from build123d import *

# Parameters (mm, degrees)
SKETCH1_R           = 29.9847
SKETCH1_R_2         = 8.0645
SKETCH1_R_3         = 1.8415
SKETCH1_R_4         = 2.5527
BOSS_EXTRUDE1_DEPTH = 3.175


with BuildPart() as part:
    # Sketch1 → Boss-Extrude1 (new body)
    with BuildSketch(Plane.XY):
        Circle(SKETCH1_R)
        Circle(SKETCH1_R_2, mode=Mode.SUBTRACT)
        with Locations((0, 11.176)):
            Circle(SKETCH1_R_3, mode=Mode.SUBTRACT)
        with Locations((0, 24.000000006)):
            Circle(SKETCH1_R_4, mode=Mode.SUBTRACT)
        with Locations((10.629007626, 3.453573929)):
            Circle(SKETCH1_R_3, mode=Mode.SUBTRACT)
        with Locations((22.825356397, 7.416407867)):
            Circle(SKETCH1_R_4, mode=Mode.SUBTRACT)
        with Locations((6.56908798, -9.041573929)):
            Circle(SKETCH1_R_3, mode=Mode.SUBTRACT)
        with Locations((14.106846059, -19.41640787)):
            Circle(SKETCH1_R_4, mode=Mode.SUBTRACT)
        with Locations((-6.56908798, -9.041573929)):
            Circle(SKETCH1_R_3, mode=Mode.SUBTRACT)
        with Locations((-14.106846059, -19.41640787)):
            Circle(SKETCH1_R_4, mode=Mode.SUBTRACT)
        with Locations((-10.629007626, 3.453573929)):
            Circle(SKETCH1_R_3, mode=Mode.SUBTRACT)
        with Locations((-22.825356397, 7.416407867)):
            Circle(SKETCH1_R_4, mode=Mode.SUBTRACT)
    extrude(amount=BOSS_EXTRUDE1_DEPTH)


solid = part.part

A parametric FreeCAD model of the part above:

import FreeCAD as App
import Part
import Sketcher
Q = App.Units.Quantity

doc = App.newDocument("Part")
body = doc.addObject("PartDesign::Body", "Body")

sketch1 = body.newObject("Sketcher::SketchObject", "Sketch")
sketch1.AttachmentSupport = (doc.getObject("XY_Plane"), [""])
sketch1.MapMode = "FlatFace"
sketch1.addGeometry([
    Part.Circle(App.Vector(0, 0, 0), App.Vector(0, 0, 1), 30),
    Part.Circle(App.Vector(-14.1, -19.4, 0), App.Vector(0, 0, 1), 2.6),
    Part.Circle(App.Vector(-6.6, -9, 0), App.Vector(0, 0, 1), 1.8),
    Part.Circle(App.Vector(14.1, -19.4, 0), App.Vector(0, 0, 1), 2.6),
    Part.Circle(App.Vector(6.6, -9, 0), App.Vector(0, 0, 1), 1.8),
    Part.Circle(App.Vector(0, 0, 0), App.Vector(0, 0, 1), 8.1),
    Part.Circle(App.Vector(-22.8, 7.4, 0), App.Vector(0, 0, 1), 2.6),
    Part.Circle(App.Vector(-10.6, 3.5, 0), App.Vector(0, 0, 1), 1.8),
    Part.Circle(App.Vector(10.6, 3.5, 0), App.Vector(0, 0, 1), 1.8),
    Part.Circle(App.Vector(0, 11.2, 0), App.Vector(0, 0, 1), 1.8),
    Part.Circle(App.Vector(22.8, 7.4, 0), App.Vector(0, 0, 1), 2.6),
    Part.Circle(App.Vector(0, 24, 0), App.Vector(0, 0, 1), 2.6),
], False)
sketch1.addConstraint([
    Sketcher.Constraint("Coincident", 0, 3, -1, 1),
    Sketcher.Constraint("Coincident", 5, 3, -1, 1),
    Sketcher.Constraint("Equal", 1, 3),
    Sketcher.Constraint("Equal", 2, 4),
    Sketcher.Constraint("Equal", 3, 6),
    Sketcher.Constraint("Equal", 4, 7),
    Sketcher.Constraint("Equal", 7, 8),
    Sketcher.Constraint("Equal", 8, 9),
    Sketcher.Constraint("Equal", 6, 10),
    Sketcher.Constraint("Equal", 10, 11),
    Sketcher.Constraint("Symmetric", 1, 3, 3, 3, -2),
    Sketcher.Constraint("Symmetric", 2, 3, 4, 3, -2),
    Sketcher.Constraint("Symmetric", 7, 3, 8, 3, -2),
    Sketcher.Constraint("Symmetric", 6, 3, 10, 3, -2),
    Sketcher.Constraint("PointOnObject", 9, 3, -2),
    Sketcher.Constraint("PointOnObject", 11, 3, -2),
    Sketcher.Constraint("Diameter", 0, Q("2.361 in")),
    Sketcher.Constraint("Diameter", 1, Q("0.201 in")),
    Sketcher.Constraint("Diameter", 2, Q("0.145 in")),
    Sketcher.Constraint("Diameter", 5, Q("0.635 in")),
    Sketcher.Constraint("DistanceY", -1, 1, 9, 3, Q("0.44 in")),
    Sketcher.Constraint("DistanceY", -1, 1, 11, 3, 24.0),
    Sketcher.Constraint("DistanceX", 1, 3, 2, 3, 7.537758),
    Sketcher.Constraint("DistanceX", 6, 3, 2, 3, 16.256268),
    Sketcher.Constraint("DistanceY", 2, 3, 6, 3, 16.457982),
    Sketcher.Constraint("DistanceX", 6, 3, 7, 3, 12.196349),
    Sketcher.Constraint("DistanceX", 1, 3, -1, 1, 14.106846),
    Sketcher.Constraint("DistanceY", 1, 3, -1, 1, 19.416408),
    Sketcher.Constraint("DistanceY", 2, 3, -1, 1, 9.041574),
    Sketcher.Constraint("DistanceY", -1, 1, 7, 3, 3.453574),
])
pad1 = body.newObject("PartDesign::Pad", "Pad")
pad1.Profile = sketch1
pad1.Length = Q("0.125 in")

doc.recompute()
